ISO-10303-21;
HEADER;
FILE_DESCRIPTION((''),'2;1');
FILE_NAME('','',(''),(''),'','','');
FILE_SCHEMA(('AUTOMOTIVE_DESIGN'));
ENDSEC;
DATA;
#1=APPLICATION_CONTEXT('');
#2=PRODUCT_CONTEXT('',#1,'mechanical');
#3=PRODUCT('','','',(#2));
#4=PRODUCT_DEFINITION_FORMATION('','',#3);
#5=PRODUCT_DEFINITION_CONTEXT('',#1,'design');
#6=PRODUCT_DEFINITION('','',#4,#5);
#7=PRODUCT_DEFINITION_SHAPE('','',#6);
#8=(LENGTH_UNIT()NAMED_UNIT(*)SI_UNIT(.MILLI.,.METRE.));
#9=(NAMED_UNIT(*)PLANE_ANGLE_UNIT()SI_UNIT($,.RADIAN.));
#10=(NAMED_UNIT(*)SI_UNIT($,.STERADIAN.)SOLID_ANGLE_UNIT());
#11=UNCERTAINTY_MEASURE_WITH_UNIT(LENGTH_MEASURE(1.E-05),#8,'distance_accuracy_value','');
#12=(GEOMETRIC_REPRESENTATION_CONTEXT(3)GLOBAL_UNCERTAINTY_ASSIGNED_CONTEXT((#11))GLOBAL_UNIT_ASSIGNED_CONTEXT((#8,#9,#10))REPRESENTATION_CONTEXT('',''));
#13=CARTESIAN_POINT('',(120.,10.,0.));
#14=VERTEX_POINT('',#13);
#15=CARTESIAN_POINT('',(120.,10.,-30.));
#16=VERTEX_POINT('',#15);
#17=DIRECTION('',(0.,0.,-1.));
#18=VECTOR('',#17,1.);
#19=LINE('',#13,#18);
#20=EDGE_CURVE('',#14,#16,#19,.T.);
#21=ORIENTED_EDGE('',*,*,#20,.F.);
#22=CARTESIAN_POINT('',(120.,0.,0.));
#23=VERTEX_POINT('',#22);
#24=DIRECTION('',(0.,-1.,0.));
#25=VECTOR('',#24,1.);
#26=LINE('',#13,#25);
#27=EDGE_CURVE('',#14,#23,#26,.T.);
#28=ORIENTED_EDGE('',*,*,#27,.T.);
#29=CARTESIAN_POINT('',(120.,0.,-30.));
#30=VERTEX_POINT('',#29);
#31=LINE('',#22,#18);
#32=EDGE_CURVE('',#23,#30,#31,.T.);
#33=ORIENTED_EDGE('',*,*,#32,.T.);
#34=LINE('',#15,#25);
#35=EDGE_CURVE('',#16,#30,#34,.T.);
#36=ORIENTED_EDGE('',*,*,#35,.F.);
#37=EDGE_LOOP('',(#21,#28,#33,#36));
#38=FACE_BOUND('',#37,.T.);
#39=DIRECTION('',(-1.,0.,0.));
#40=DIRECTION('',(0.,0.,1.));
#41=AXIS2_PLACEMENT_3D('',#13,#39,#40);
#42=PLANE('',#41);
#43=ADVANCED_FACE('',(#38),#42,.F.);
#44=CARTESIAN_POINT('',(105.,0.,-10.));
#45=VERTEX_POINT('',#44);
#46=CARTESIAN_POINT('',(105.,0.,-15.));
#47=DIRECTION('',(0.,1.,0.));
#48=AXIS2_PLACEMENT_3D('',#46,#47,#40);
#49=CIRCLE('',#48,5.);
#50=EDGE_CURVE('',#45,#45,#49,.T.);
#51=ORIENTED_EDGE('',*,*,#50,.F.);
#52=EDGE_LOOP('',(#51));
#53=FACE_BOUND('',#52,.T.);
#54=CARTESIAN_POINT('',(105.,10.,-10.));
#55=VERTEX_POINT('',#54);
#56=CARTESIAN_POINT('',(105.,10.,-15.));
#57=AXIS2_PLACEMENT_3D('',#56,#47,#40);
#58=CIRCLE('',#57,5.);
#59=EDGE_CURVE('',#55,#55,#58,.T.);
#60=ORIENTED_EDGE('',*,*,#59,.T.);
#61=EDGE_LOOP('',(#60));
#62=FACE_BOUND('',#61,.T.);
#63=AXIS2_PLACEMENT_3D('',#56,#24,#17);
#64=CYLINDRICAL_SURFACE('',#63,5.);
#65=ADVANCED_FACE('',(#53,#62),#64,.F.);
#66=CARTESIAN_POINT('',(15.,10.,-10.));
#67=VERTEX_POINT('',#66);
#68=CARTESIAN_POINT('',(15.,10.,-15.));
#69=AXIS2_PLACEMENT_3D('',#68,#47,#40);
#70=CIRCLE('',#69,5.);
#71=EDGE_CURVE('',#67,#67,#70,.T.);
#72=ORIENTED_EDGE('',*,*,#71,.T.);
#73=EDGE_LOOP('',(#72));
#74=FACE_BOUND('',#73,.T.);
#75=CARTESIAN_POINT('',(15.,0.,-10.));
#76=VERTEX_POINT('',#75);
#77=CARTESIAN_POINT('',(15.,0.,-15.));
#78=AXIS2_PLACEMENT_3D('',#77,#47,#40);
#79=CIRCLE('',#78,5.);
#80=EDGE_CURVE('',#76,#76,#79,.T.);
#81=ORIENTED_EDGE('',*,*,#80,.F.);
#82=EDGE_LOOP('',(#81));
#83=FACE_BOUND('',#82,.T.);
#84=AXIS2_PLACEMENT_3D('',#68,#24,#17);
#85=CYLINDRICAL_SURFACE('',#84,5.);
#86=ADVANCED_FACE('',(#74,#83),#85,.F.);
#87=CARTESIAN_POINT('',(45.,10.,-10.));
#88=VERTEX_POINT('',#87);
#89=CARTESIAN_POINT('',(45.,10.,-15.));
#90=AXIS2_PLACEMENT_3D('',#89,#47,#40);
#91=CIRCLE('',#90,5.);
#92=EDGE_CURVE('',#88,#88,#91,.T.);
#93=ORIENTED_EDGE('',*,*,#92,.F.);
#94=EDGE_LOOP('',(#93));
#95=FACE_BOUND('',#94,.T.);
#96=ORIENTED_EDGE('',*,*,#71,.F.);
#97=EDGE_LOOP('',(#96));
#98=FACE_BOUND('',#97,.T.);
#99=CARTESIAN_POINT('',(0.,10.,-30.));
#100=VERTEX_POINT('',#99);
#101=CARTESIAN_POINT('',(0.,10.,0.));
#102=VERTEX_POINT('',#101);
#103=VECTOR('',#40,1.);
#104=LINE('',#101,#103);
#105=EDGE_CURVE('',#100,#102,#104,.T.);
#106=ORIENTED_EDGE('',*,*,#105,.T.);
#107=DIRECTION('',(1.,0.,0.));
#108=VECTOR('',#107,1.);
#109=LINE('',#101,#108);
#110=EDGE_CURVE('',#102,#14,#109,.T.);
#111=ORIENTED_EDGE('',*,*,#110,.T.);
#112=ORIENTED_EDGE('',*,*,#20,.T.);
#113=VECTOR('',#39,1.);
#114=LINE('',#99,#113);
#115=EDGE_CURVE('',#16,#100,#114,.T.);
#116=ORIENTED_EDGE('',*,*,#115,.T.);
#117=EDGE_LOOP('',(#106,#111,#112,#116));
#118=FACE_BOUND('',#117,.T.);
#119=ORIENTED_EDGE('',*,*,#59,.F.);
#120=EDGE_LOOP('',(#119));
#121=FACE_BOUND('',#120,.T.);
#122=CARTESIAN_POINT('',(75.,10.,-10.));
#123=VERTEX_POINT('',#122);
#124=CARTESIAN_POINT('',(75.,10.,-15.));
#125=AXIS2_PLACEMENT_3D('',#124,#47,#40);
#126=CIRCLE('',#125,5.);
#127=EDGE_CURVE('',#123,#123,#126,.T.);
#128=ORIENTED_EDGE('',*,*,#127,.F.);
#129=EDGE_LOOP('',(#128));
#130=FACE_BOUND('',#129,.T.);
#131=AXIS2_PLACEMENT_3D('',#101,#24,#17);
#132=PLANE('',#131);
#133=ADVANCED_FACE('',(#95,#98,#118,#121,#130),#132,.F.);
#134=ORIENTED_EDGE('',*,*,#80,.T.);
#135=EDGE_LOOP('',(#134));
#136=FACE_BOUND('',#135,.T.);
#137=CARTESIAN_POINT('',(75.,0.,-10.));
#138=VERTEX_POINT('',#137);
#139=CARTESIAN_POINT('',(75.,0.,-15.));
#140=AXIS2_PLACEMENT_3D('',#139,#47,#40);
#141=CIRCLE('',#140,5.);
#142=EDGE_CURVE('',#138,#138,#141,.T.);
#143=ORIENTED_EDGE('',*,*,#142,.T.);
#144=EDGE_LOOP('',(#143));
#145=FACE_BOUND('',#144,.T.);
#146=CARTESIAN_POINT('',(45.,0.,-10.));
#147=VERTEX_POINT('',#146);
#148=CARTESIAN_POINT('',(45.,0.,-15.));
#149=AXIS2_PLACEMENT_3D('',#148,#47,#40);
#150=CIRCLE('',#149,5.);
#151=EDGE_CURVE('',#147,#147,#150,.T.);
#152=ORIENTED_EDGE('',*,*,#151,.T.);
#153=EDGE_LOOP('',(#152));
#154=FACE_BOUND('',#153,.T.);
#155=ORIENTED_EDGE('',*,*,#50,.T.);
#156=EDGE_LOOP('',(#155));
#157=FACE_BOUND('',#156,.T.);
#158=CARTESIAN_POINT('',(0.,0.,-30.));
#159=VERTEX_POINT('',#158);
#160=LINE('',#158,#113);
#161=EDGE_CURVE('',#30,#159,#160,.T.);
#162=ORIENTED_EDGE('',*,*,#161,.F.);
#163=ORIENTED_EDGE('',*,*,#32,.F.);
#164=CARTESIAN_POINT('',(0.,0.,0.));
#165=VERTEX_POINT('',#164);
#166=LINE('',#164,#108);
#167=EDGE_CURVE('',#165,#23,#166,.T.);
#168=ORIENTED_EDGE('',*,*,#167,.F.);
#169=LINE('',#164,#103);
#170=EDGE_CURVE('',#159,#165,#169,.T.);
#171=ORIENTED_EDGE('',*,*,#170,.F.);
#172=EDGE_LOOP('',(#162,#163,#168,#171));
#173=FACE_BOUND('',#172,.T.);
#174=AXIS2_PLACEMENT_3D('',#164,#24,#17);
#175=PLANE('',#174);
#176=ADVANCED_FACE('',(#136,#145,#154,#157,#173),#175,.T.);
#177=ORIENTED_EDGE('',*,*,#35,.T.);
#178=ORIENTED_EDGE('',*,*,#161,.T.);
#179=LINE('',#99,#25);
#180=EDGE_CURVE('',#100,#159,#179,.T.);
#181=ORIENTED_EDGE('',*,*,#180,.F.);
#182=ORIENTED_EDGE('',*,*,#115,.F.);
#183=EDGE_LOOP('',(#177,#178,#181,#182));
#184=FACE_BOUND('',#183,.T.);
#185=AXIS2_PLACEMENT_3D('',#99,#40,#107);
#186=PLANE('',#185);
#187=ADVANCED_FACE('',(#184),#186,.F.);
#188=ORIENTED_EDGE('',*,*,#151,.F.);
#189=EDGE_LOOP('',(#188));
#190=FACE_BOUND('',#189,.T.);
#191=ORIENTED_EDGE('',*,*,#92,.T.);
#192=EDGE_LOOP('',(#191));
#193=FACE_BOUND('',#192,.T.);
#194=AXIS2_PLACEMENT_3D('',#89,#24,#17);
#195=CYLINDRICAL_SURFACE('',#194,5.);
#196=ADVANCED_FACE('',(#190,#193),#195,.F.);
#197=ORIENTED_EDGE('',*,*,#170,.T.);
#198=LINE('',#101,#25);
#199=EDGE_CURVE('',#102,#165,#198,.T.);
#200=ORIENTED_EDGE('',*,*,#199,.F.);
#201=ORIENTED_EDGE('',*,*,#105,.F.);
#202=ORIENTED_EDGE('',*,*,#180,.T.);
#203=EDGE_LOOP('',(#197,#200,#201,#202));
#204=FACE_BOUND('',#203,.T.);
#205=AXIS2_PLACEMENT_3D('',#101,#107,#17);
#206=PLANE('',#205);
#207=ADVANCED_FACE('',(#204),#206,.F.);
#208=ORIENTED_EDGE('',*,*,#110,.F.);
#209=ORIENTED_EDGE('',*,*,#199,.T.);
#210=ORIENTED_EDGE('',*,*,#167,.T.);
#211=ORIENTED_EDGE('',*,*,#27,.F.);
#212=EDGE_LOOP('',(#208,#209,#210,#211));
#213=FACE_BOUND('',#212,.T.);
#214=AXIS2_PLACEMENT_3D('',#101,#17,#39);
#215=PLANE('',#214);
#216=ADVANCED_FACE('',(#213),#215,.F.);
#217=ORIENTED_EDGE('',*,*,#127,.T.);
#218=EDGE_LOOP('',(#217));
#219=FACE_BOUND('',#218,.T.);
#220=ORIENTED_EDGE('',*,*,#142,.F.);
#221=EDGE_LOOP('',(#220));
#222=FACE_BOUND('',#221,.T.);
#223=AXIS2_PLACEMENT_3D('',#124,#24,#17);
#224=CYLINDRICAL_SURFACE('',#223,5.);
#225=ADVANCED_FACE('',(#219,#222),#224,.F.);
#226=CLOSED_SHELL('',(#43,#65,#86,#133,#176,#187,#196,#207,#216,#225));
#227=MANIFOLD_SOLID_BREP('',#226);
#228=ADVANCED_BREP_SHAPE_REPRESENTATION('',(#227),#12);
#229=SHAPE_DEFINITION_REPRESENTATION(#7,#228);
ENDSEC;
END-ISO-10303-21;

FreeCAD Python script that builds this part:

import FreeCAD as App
import Part
import Sketcher
from FreeCAD import Vector


def add_polygon(sketch, points):
    """Adds a closed chain of lines whose ends are joined by coincident constraints."""
    first, n = sketch.GeometryCount, len(points)
    for a, b in zip(points, points[1:] + points[:1]):
        sketch.addGeometry(Part.LineSegment(App.Vector(*a, 0), App.Vector(*b, 0)), False)
    for i in range(n):
        sketch.addConstraint(Sketcher.Constraint("Coincident", first + i, 2, first + (i + 1) % n, 1))

doc = App.newDocument("Part")
body = doc.addObject("PartDesign::Body", "Body")

# Sketch on XZ plane
sketch1 = body.newObject("Sketcher::SketchObject", "Sketch")
sketch1.AttachmentSupport = (doc.getObject("XZ_Plane"), [""])
sketch1.MapMode = "FlatFace"
add_polygon(sketch1, [(0, -30), (0, 0), (120, 0), (120, -30)])  # lines 0-3
sketch1.addGeometry(Part.Circle(Vector(15, -15, 0), Vector(0, 0, 1), 5), False)  # 4
sketch1.addGeometry(Part.Circle(Vector(45, -15, 0), Vector(0, 0, 1), 5), False)  # 5
sketch1.addGeometry(Part.Circle(Vector(75, -15, 0), Vector(0, 0, 1), 5), False)  # 6
sketch1.addGeometry(Part.Circle(Vector(105, -15, 0), Vector(0, 0, 1), 5), False)  # 7
sketch1.addConstraint([
    Sketcher.Constraint("Vertical", 0),
    Sketcher.Constraint("Horizontal", 1),
    Sketcher.Constraint("Vertical", 2),
    Sketcher.Constraint("Horizontal", 3),
    Sketcher.Constraint("Coincident", 0, 2, -1, 1),
    Sketcher.Constraint("Equal", 4, 5),
    Sketcher.Constraint("Equal", 5, 6),
    Sketcher.Constraint("Equal", 6, 7),
    Sketcher.Constraint("Horizontal", 4, 3, 5, 3),
    Sketcher.Constraint("Horizontal", 5, 3, 6, 3),
    Sketcher.Constraint("Horizontal", 6, 3, 7, 3),
    Sketcher.Constraint("Diameter", 4, 10.0),
    Sketcher.Constraint("DistanceX", 1, 1, 1, 2, 120.0),
    Sketcher.Constraint("DistanceY", 0, 1, 0, 2, 30.0),
    Sketcher.Constraint("DistanceX", -1, 1, 4, 3, 15.0),
    Sketcher.Constraint("DistanceY", 4, 3, -1, 1, 15.0),
    Sketcher.Constraint("DistanceX", -1, 1, 5, 3, 45.0),
    Sketcher.Constraint("DistanceX", -1, 1, 6, 3, 75.0),
    Sketcher.Constraint("DistanceX", -1, 1, 7, 3, 105.0),
])
pad1 = body.newObject("PartDesign::Pad", "Pad")
pad1.Profile = sketch1
pad1.Length = 10
pad1.Reversed = True

doc.recompute()
